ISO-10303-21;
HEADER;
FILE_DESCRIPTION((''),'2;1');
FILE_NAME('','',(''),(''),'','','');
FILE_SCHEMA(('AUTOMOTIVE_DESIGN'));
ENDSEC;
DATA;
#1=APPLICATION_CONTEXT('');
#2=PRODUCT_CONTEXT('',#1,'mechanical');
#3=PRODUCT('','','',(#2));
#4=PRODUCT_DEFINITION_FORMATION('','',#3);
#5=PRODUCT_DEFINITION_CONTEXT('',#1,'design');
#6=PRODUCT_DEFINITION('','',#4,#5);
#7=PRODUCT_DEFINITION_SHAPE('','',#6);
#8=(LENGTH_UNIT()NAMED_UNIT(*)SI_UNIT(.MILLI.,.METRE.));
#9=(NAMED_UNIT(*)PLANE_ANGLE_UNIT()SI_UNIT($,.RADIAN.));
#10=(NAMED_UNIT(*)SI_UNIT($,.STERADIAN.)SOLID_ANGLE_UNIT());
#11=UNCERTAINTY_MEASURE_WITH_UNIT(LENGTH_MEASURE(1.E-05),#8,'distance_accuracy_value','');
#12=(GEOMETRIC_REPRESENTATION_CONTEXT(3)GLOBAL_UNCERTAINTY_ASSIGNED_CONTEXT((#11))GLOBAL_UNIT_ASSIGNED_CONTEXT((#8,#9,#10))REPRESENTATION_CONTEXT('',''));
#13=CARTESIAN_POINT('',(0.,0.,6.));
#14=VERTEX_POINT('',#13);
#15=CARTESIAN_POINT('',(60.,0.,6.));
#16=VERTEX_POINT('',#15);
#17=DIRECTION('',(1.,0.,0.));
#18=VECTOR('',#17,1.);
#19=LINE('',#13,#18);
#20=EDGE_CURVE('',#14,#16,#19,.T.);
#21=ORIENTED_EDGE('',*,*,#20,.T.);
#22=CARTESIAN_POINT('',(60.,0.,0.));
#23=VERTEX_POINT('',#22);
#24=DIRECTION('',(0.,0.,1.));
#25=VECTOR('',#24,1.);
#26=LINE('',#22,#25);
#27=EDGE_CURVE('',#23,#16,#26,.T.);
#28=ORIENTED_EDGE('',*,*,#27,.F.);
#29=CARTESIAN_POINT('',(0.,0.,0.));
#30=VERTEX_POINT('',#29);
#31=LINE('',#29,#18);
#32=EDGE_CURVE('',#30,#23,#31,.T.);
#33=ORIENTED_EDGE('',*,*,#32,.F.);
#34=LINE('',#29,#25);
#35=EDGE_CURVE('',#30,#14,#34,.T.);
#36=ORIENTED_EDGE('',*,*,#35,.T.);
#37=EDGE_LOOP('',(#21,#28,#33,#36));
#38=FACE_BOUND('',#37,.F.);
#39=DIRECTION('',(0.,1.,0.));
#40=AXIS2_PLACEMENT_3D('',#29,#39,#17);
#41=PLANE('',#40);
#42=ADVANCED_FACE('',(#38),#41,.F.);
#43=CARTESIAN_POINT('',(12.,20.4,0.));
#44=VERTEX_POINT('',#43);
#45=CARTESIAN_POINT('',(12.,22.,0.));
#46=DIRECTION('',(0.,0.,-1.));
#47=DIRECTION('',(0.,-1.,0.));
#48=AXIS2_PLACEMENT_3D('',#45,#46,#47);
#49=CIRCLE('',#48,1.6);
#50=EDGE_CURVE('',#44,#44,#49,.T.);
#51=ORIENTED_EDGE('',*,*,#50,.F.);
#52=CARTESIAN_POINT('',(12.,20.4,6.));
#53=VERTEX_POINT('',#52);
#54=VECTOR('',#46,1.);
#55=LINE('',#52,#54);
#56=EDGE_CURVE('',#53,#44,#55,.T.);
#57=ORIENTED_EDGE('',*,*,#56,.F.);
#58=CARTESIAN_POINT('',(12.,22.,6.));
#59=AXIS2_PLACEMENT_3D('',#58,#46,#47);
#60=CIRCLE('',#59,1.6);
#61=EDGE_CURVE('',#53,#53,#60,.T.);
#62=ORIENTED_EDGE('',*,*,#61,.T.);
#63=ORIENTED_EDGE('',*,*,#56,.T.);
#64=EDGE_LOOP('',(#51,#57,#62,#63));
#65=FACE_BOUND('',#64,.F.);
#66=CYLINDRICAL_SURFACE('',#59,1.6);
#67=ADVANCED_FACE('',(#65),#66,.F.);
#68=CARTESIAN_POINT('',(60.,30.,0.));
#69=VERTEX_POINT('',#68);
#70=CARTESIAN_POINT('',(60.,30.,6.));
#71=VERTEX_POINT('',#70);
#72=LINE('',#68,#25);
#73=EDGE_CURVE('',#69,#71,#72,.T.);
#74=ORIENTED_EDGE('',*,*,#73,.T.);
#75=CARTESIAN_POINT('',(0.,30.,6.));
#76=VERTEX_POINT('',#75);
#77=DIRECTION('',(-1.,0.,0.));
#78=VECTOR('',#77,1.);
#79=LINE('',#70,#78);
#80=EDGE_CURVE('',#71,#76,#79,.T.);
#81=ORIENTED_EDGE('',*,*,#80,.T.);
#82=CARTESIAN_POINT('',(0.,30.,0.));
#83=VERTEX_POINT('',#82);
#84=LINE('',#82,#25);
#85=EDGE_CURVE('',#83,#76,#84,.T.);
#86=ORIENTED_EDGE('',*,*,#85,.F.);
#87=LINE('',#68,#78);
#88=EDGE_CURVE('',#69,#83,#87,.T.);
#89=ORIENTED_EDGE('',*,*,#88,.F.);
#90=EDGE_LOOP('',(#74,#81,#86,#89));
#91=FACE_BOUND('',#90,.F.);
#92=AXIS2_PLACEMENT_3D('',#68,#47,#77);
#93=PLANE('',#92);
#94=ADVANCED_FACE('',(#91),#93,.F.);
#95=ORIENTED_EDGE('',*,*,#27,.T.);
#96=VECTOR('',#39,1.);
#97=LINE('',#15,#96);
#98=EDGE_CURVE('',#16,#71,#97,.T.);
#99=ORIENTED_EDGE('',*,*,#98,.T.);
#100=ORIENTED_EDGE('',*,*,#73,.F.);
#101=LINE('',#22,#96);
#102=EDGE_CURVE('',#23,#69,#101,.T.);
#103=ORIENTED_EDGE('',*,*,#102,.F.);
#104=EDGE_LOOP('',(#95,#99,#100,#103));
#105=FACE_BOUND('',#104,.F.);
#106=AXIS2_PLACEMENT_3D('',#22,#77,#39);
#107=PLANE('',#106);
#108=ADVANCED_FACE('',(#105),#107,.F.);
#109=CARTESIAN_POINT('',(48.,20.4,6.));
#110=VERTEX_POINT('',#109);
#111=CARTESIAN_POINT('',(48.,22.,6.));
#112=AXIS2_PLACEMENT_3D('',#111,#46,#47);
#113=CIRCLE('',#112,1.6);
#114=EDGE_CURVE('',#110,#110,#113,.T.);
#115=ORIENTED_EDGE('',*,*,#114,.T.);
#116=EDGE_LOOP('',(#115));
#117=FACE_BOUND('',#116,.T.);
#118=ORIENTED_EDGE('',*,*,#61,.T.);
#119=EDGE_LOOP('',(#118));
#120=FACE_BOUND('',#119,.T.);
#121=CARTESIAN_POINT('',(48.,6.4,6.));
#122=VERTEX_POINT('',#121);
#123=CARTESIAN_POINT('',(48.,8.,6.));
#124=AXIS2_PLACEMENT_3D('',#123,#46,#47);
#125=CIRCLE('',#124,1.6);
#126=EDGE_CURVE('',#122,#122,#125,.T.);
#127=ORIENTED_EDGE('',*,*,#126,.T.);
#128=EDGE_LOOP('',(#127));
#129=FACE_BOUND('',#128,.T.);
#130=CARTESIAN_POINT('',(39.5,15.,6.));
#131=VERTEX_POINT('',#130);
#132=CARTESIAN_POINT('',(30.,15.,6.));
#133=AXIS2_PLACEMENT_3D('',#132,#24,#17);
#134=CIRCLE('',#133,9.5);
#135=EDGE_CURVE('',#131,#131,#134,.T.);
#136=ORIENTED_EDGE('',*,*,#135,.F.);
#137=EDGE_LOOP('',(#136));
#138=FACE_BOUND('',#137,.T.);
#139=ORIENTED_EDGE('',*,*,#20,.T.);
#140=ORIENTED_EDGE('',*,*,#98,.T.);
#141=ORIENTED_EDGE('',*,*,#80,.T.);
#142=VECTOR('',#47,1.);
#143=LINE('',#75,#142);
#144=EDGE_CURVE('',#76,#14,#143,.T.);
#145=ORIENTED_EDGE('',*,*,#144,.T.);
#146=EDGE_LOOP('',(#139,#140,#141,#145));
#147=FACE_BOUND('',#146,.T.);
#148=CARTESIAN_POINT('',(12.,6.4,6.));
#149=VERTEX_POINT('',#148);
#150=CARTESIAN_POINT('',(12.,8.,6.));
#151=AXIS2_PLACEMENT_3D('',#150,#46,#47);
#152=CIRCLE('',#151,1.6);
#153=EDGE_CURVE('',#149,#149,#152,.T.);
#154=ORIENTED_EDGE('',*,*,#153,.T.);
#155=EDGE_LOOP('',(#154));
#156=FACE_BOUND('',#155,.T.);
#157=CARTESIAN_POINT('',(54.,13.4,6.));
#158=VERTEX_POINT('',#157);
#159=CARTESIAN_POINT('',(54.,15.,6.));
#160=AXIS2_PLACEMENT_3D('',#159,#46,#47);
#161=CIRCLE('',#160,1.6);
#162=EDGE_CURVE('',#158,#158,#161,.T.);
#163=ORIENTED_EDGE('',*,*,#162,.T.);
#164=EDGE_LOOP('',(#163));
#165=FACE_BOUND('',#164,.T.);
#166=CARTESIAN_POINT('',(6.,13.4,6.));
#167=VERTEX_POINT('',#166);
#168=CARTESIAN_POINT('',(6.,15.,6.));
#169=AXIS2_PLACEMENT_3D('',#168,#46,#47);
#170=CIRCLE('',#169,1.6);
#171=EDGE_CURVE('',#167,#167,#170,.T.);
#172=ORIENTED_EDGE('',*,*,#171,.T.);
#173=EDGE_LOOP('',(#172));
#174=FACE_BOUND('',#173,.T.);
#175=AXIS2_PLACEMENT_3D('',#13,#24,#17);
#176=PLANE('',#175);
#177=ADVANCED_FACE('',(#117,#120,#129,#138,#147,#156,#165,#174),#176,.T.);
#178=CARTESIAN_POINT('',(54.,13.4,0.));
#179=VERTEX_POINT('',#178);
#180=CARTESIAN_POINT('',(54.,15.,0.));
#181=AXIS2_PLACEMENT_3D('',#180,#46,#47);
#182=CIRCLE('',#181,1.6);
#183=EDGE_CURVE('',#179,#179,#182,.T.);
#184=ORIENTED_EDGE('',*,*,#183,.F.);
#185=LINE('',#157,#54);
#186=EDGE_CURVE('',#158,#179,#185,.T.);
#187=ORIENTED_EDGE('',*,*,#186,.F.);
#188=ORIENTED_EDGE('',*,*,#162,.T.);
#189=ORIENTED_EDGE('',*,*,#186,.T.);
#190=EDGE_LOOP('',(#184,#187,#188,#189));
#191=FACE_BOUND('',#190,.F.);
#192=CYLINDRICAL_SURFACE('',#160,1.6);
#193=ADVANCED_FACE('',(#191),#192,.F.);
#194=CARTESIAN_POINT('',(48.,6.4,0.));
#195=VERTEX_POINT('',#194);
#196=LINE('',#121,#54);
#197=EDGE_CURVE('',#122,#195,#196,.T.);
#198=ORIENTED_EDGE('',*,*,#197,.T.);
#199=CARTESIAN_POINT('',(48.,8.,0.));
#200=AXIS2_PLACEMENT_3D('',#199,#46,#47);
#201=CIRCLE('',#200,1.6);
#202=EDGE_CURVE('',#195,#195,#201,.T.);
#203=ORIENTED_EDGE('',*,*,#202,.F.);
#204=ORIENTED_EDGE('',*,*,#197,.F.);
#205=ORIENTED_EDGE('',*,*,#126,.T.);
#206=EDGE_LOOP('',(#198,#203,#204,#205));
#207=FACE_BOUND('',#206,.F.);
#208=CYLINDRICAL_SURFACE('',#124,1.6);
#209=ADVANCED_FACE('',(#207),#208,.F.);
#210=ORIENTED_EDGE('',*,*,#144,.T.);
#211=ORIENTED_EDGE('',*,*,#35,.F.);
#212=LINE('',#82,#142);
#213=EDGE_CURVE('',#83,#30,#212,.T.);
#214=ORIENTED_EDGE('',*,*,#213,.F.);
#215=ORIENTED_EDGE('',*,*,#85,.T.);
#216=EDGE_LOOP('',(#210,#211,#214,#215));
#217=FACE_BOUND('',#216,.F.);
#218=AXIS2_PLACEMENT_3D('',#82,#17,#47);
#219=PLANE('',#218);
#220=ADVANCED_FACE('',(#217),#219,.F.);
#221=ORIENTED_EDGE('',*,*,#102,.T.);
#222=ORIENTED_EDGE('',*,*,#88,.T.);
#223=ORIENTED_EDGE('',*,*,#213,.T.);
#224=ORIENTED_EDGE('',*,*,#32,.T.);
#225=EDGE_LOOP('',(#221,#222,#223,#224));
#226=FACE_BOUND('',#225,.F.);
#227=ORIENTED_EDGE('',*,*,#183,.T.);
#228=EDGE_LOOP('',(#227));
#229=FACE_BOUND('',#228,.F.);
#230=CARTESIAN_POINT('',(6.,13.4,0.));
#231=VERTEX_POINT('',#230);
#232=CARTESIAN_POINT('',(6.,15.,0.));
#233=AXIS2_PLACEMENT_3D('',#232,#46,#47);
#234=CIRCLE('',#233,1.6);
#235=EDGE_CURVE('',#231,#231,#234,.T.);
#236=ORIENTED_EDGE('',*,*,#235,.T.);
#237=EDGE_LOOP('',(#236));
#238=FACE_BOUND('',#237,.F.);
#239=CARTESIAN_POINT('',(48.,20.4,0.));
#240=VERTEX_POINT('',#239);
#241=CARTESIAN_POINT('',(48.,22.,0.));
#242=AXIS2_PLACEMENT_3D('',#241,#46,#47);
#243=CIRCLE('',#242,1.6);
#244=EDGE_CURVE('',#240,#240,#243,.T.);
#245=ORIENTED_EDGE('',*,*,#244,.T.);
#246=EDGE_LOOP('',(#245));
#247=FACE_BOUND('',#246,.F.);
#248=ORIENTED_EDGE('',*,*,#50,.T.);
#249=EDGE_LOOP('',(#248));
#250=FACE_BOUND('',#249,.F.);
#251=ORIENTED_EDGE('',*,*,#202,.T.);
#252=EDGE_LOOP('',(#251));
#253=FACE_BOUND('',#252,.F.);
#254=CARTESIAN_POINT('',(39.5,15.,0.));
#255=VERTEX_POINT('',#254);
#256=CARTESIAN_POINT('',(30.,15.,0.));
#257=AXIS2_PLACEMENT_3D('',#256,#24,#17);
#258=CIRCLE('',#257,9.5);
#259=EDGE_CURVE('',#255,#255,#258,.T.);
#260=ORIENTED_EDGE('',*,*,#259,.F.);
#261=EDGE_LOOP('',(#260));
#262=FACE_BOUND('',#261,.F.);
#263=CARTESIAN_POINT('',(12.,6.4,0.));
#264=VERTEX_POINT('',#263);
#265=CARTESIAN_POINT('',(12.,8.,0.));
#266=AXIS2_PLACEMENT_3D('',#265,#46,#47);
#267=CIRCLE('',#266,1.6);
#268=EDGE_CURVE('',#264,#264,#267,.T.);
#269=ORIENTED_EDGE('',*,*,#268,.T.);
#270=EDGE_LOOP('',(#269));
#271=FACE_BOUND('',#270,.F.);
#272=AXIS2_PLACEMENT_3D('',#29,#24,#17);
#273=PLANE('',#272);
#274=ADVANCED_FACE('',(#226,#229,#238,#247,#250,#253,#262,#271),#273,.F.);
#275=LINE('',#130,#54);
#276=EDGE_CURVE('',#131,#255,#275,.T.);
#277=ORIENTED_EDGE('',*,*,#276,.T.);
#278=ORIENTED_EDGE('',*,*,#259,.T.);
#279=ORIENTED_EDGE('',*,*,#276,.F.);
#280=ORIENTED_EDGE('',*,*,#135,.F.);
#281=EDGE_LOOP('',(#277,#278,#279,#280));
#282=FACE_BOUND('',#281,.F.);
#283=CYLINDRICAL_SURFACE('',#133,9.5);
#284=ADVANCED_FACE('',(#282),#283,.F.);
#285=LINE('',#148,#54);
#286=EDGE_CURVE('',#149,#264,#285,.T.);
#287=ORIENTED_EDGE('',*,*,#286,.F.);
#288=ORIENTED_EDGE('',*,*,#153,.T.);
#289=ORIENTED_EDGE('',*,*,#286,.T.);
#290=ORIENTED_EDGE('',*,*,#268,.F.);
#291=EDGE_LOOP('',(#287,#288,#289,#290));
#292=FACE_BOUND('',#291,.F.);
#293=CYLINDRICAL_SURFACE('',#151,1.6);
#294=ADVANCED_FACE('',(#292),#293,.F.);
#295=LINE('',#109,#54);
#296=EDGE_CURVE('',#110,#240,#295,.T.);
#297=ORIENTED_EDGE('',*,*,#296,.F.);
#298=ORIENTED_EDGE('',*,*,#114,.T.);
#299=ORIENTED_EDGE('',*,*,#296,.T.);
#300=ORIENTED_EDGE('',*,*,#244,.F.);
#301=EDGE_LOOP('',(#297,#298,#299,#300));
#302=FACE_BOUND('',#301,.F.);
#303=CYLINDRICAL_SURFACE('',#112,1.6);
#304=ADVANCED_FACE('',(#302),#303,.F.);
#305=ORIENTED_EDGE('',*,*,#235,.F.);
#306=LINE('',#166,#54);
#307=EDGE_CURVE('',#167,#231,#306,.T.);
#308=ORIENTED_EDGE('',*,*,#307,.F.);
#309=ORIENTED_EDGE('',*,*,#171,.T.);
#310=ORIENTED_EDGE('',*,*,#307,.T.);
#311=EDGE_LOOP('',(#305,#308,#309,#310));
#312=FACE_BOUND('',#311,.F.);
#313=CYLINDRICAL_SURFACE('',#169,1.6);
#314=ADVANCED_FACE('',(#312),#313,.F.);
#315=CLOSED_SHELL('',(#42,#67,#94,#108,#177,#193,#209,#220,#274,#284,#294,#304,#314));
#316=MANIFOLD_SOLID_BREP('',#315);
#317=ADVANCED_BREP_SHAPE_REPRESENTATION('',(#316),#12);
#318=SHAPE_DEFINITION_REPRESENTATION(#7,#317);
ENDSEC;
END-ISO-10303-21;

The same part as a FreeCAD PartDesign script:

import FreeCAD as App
import Part
import Sketcher

V = App.Vector

doc = App.newDocument("Part")
body = doc.addObject("PartDesign::Body", "Body")

# Sketch on XY plane
sketch1 = doc.addObject("Sketcher::SketchObject", "Sketch")
body.addObject(sketch1)
sketch1.AttachmentSupport = (doc.XY_Plane, [""])
sketch1.MapMode = "FlatFace"
sketch1.addGeometry(Part.LineSegment(V(0, 30, 0), V(0, 0, 0)), False)
sketch1.addGeometry(Part.LineSegment(V(0, 0, 0), V(60, 0, 0)), False)
sketch1.addGeometry(Part.LineSegment(V(60, 0, 0), V(60, 30, 0)), False)
sketch1.addGeometry(Part.LineSegment(V(60, 30, 0), V(0, 30, 0)), False)
sketch1.addConstraint(Sketcher.Constraint("Coincident", 0, 2, 1, 1))
sketch1.addConstraint(Sketcher.Constraint("Coincident", 1, 2, 2, 1))
sketch1.addConstraint(Sketcher.Constraint("Coincident", 2, 2, 3, 1))
sketch1.addConstraint(Sketcher.Constraint("Coincident", 3, 2, 0, 1))
sketch1.addConstraint(Sketcher.Constraint("Vertical", 0))
sketch1.addConstraint(Sketcher.Constraint("Horizontal", 1))
sketch1.addConstraint(Sketcher.Constraint("Vertical", 2))
sketch1.addConstraint(Sketcher.Constraint("Horizontal", 3))
sketch1.addConstraint(Sketcher.Constraint("Coincident", 0, 2, -1, 1))
sketch1.addConstraint(Sketcher.Constraint("DistanceX", 1, 1, 1, 2, 60.0))
sketch1.addConstraint(Sketcher.Constraint("DistanceY", 0, 2, 0, 1, 30.0))
pad1 = doc.addObject("PartDesign::Pad", "Pad")
body.addObject(pad1)
pad1.Profile = sketch1
pad1.Length = 6

# Sketch on XY plane
sketch2 = doc.addObject("Sketcher::SketchObject", "Sketch001")
body.addObject(sketch2)
sketch2.AttachmentSupport = (doc.XY_Plane, [""])
sketch2.MapMode = "FlatFace"
sketch2.AttachmentOffset = App.Placement(V(0, 0, 6), App.Rotation())
sketch2.addGeometry(Part.Circle(V(30, 15, 0), V(0, 0, 1), 10), False)
sketch2.addConstraint(Sketcher.Constraint("Diameter", 0, 19.0))
sketch2.addConstraint(Sketcher.Constraint("DistanceX", -1, 1, 0, 3, 30.0))
sketch2.addConstraint(Sketcher.Constraint("DistanceY", -1, 1, 0, 3, 15.0))
pocket1 = doc.addObject("PartDesign::Pocket", "Pocket")
body.addObject(pocket1)
pocket1.Profile = sketch2
pocket1.Length = 6

# Sketch on XY plane
sketch3 = doc.addObject("Sketcher::SketchObject", "Sketch002")
body.addObject(sketch3)
sketch3.AttachmentSupport = (doc.XY_Plane, [""])
sketch3.MapMode = "FlatFace"
sketch3.AttachmentOffset = App.Placement(V(0, 0, 6), App.Rotation())
sketch3.addGeometry(Part.Circle(V(12, 22, 0), V(0, 0, 1), 1.6), False)
sketch3.addGeometry(Part.Circle(V(6, 15, 0), V(0, 0, 1), 1.6), False)
sketch3.addGeometry(Part.Circle(V(12, 8, 0), V(0, 0, 1), 1.6), False)
sketch3.addGeometry(Part.Circle(V(48, 22, 0), V(0, 0, 1), 1.6), False)
sketch3.addGeometry(Part.Circle(V(54, 15, 0), V(0, 0, 1), 1.6), False)
sketch3.addGeometry(Part.Circle(V(48, 8, 0), V(0, 0, 1), 1.6), False)
sketch3.addConstraint(Sketcher.Constraint("Equal", 0, 1))
sketch3.addConstraint(Sketcher.Constraint("Equal", 1, 2))
sketch3.addConstraint(Sketcher.Constraint("Equal", 2, 3))
sketch3.addConstraint(Sketcher.Constraint("Equal", 3, 4))
sketch3.addConstraint(Sketcher.Constraint("Equal", 4, 5))
sketch3.addConstraint(Sketcher.Constraint("Horizontal", 0, 3, 3, 3))
sketch3.addConstraint(Sketcher.Constraint("Horizontal", 1, 3, 4, 3))
sketch3.addConstraint(Sketcher.Constraint("Horizontal", 2, 3, 5, 3))
sketch3.addConstraint(Sketcher.Constraint("Vertical", 0, 3, 2, 3))
sketch3.addConstraint(Sketcher.Constraint("Vertical", 3, 3, 5, 3))
sketch3.addConstraint(Sketcher.Constraint("Diameter", 0, 3.2))
sketch3.addConstraint(Sketcher.Constraint("DistanceX", -1, 1, 0, 3, 12.0))
sketch3.addConstraint(Sketcher.Constraint("DistanceY", -1, 1, 0, 3, 22.0))
sketch3.addConstraint(Sketcher.Constraint("DistanceX", -1, 1, 1, 3, 6.0))
sketch3.addConstraint(Sketcher.Constraint("DistanceY", -1, 1, 1, 3, 15.0))
sketch3.addConstraint(Sketcher.Constraint("DistanceY", -1, 1, 2, 3, 8.0))
sketch3.addConstraint(Sketcher.Constraint("DistanceX", -1, 1, 3, 3, 48.0))
sketch3.addConstraint(Sketcher.Constraint("DistanceX", -1, 1, 4, 3, 54.0))
doc.recompute()
hole = doc.addObject("PartDesign::Hole", "Hole")
body.addObject(hole)
hole.Profile = sketch3
hole.ThreadType = "None"
hole.Diameter = 3.2
hole.DepthType = "Dimension"
hole.Depth = 6
hole.DrillPoint = "Flat"

doc.recompute()
